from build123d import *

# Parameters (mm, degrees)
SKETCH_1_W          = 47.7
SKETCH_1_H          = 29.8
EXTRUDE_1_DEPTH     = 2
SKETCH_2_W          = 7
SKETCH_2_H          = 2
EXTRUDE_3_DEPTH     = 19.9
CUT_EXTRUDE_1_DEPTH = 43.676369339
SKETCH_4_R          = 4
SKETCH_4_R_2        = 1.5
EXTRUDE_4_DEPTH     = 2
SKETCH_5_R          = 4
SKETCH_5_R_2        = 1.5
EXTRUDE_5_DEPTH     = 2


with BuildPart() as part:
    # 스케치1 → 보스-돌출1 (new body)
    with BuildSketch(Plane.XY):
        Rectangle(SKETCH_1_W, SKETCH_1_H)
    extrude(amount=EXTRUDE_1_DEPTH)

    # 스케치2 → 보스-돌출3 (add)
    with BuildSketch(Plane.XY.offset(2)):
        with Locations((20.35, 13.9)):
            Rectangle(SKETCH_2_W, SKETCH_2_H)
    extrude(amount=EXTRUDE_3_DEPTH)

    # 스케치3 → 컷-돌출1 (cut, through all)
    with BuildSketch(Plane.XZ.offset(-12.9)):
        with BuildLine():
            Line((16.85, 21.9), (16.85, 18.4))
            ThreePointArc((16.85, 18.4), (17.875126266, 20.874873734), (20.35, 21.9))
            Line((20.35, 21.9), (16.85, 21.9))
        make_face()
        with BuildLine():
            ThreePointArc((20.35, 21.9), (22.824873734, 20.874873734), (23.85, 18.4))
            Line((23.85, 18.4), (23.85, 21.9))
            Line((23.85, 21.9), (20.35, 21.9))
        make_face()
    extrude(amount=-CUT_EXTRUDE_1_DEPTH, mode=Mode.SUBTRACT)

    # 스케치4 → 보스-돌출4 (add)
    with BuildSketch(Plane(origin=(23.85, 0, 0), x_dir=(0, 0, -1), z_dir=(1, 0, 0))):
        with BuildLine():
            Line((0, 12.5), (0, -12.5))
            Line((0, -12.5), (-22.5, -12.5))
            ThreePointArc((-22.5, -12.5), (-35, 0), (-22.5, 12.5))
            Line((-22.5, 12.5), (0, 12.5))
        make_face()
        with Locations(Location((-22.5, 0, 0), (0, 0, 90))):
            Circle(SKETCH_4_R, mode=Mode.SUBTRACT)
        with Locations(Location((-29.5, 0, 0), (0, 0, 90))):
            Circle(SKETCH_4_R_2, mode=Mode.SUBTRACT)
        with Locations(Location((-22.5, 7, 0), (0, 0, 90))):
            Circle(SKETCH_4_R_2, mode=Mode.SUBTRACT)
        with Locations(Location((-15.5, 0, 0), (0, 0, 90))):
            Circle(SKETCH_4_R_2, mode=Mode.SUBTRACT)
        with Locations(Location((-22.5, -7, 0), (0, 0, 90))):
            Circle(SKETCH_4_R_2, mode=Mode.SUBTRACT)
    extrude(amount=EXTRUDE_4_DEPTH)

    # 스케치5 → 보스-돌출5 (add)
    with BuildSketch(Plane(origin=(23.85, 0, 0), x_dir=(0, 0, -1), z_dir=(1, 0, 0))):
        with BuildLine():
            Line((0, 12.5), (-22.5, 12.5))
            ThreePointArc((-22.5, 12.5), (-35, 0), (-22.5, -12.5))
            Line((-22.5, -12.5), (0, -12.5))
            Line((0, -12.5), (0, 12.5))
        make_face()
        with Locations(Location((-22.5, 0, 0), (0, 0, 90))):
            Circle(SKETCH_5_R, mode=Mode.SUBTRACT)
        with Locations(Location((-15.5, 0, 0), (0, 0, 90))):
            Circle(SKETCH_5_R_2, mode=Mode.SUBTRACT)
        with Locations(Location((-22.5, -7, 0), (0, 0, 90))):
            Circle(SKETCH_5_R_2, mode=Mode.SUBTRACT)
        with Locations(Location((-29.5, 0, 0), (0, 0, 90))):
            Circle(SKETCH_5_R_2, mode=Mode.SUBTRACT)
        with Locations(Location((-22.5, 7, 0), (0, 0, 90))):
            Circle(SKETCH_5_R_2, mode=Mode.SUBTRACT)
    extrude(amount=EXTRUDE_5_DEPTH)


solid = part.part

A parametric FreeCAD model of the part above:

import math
import FreeCAD as App
import Part
import Sketcher

V = App.Vector
Q = App.Units.Quantity

doc = App.newDocument("Part")
body = doc.addObject("PartDesign::Body", "Body")

sketch1 = body.newObject("Sketcher::SketchObject", "Sketch")
sketch1.AttachmentSupport = (doc.getObject("XY_Plane"), [""])
sketch1.MapMode = "FlatFace"
sketch1.addGeometry(Part.LineSegment(V(-23.85, 14.9, 0), V(-23.85, -14.9, 0)), False)
sketch1.addGeometry(Part.LineSegment(V(-23.85, -14.9, 0), V(23.85, -14.9, 0)), False)
sketch1.addGeometry(Part.LineSegment(V(23.85, -14.9, 0), V(23.85, 14.9, 0)), False)
sketch1.addGeometry(Part.LineSegment(V(23.85, 14.9, 0), V(-23.85, 14.9, 0)), False)
sketch1.addConstraint(Sketcher.Constraint("Coincident", 0, 2, 1, 1))
sketch1.addConstraint(Sketcher.Constraint("Coincident", 1, 2, 2, 1))
sketch1.addConstraint(Sketcher.Constraint("Coincident", 2, 2, 3, 1))
sketch1.addConstraint(Sketcher.Constraint("Coincident", 3, 2, 0, 1))
sketch1.addConstraint(Sketcher.Constraint("Vertical", 0))
sketch1.addConstraint(Sketcher.Constraint("Horizontal", 1))
sketch1.addConstraint(Sketcher.Constraint("Vertical", 2))
sketch1.addConstraint(Sketcher.Constraint("Horizontal", 3))
sketch1.addConstraint(Sketcher.Constraint("Symmetric", 0, 2, 2, 2, -1, 1))
sketch1.addConstraint(Sketcher.Constraint("DistanceX", 1, 1, 1, 2, Q("47.7 mm")))
sketch1.addConstraint(Sketcher.Constraint("DistanceY", 0, 2, 0, 1, Q("29.8 mm")))
pad1 = body.newObject("PartDesign::Pad", "Pad")
pad1.Profile = sketch1
pad1.Length = 2

sketch2 = body.newObject("Sketcher::SketchObject", "Sketch001")
sketch2.AttachmentSupport = (doc.getObject("XY_Plane"), [""])
sketch2.MapMode = "FlatFace"
sketch2.AttachmentOffset = App.Placement(V(0, 0, 2), App.Rotation())
sketch2.addGeometry(Part.LineSegment(V(16.85, 14.9, 0), V(16.85, 12.9, 0)), False)
sketch2.addGeometry(Part.LineSegment(V(16.85, 12.9, 0), V(23.85, 12.9, 0)), False)
sketch2.addGeometry(Part.LineSegment(V(23.85, 12.9, 0), V(23.85, 14.9, 0)), False)
sketch2.addGeometry(Part.LineSegment(V(23.85, 14.9, 0), V(16.85, 14.9, 0)), False)
sketch2.addConstraint(Sketcher.Constraint("Coincident", 0, 2, 1, 1))
sketch2.addConstraint(Sketcher.Constraint("Coincident", 1, 2, 2, 1))
sketch2.addConstraint(Sketcher.Constraint("Coincident", 2, 2, 3, 1))
sketch2.addConstraint(Sketcher.Constraint("Coincident", 3, 2, 0, 1))
sketch2.addConstraint(Sketcher.Constraint("Vertical", 0))
sketch2.addConstraint(Sketcher.Constraint("Horizontal", 1))
sketch2.addConstraint(Sketcher.Constraint("Vertical", 2))
sketch2.addConstraint(Sketcher.Constraint("Horizontal", 3))
sketch2.addConstraint(Sketcher.Constraint("DistanceX", 1, 1, 1, 2, Q("7 mm")))
sketch2.addConstraint(Sketcher.Constraint("DistanceY", 0, 2, 0, 1, Q("2 mm")))
sketch2.addConstraint(Sketcher.Constraint("DistanceY", -1, 1, 0, 2, Q("12.9 mm")))
sketch2.addConstraint(Sketcher.Constraint("DistanceX", -1, 1, 0, 2, Q("16.85 mm")))
pad2 = body.newObject("PartDesign::Pad", "Pad001")
pad2.Profile = sketch2
pad2.Length = 19.9

sketch3 = body.newObject("Sketcher::SketchObject", "Sketch002")
sketch3.AttachmentSupport = (doc.getObject("XZ_Plane"), [""])
sketch3.MapMode = "FlatFace"
sketch3.AttachmentOffset = App.Placement(V(0, 0, -12.9), App.Rotation())
sketch3.addGeometry(Part.LineSegment(V(16.85, 21.9, 0), V(16.85, 18.4, 0)), False)
sketch3.addGeometry(Part.ArcOfCircle(Part.Circle(V(20.35, 18.4, 0), V(0, 0, 1), 3.5), math.radians(90), math.radians(180)), False)
sketch3.addGeometry(Part.LineSegment(V(20.35, 21.9, 0), V(16.85, 21.9, 0)), False)
sketch3.addGeometry(Part.ArcOfCircle(Part.Circle(V(20.35, 18.4, 0), V(0, 0, 1), 3.5), math.radians(0), math.radians(90)), False)
sketch3.addGeometry(Part.LineSegment(V(23.85, 18.4, 0), V(23.85, 21.9, 0)), False)
sketch3.addGeometry(Part.LineSegment(V(23.85, 21.9, 0), V(20.35, 21.9, 0)), False)
sketch3.addConstraint(Sketcher.Constraint("Tangent", 0, 2, 1, 2))
sketch3.addConstraint(Sketcher.Constraint("Tangent", 1, 1, 2, 1))
sketch3.addConstraint(Sketcher.Constraint("Coincident", 2, 2, 0, 1))
sketch3.addConstraint(Sketcher.Constraint("Tangent", 3, 1, 4, 1))
sketch3.addConstraint(Sketcher.Constraint("Coincident", 4, 2, 5, 1))
sketch3.addConstraint(Sketcher.Constraint("Tangent", 5, 2, 3, 2))
sketch3.addConstraint(Sketcher.Constraint("Vertical", 0))
sketch3.addConstraint(Sketcher.Constraint("Horizontal", 2))
sketch3.addConstraint(Sketcher.Constraint("Vertical", 4))
sketch3.addConstraint(Sketcher.Constraint("Horizontal", 5))
sketch3.addConstraint(Sketcher.Constraint("Coincident", 3, 3, 1, 3))
sketch3.addConstraint(Sketcher.Constraint("Equal", 1, 3))
sketch3.addConstraint(Sketcher.Constraint("Radius", 1, Q("3.5 mm")))
sketch3.addConstraint(Sketcher.Constraint("DistanceY", -1, 1, 1, 3, Q("18.4 mm")))
sketch3.addConstraint(Sketcher.Constraint("DistanceX", -1, 1, 1, 3, Q("20.35 mm")))
pocket1 = body.newObject("PartDesign::Pocket", "Pocket")
pocket1.Profile = sketch3
pocket1.Type = "ThroughAll"

sketch4 = body.newObject("Sketcher::SketchObject", "Sketch003")
sketch4.AttachmentSupport = (doc.getObject("YZ_Plane"), [""])
sketch4.MapMode = "FlatFace"
sketch4.AttachmentOffset = App.Placement(V(0, 0, 23.85), App.Rotation())
sketch4.addGeometry(Part.LineSegment(V(-12.5, 0, 0), V(12.5, 0, 0)), False)
sketch4.addGeometry(Part.LineSegment(V(12.5, 0, 0), V(12.5, 22.5, 0)), False)
sketch4.addGeometry(Part.ArcOfCircle(Part.Circle(V(0, 22.5, 0), V(0, 0, 1), 12.5), math.radians(0), math.radians(180)), False)
sketch4.addGeometry(Part.LineSegment(V(-12.5, 22.5, 0), V(-12.5, 0, 0)), False)
sketch4.addGeometry(Part.Circle(V(-7, 22.5, 0), V(0, 0, 1), 1.5), False)
sketch4.addGeometry(Part.Circle(V(0, 15.5, 0), V(0, 0, 1), 1.5), False)
sketch4.addGeometry(Part.Circle(V(0, 22.5, 0), V(0, 0, 1), 4), False)
sketch4.addGeometry(Part.Circle(V(0, 29.5, 0), V(0, 0, 1), 1.5), False)
sketch4.addGeometry(Part.Circle(V(7, 22.5, 0), V(0, 0, 1), 1.5), False)
sketch4.addConstraint(Sketcher.Constraint("Coincident", 0, 2, 1, 1))
sketch4.addConstraint(Sketcher.Constraint("Tangent", 1, 2, 2, 1))
sketch4.addConstraint(Sketcher.Constraint("Tangent", 2, 2, 3, 1))
sketch4.addConstraint(Sketcher.Constraint("Coincident", 3, 2, 0, 1))
sketch4.addConstraint(Sketcher.Constraint("Horizontal", 0))
sketch4.addConstraint(Sketcher.Constraint("Vertical", 1))
sketch4.addConstraint(Sketcher.Constraint("Vertical", 3))
sketch4.addConstraint(Sketcher.Constraint("Coincident", 6, 3, 2, 3))
sketch4.addConstraint(Sketcher.Constraint("Equal", 4, 5))
sketch4.addConstraint(Sketcher.Constraint("Equal", 5, 7))
sketch4.addConstraint(Sketcher.Constraint("Equal", 7, 8))
sketch4.addConstraint(Sketcher.Constraint("Symmetric", 0, 2, 3, 2, -1, 1))
sketch4.addConstraint(Sketcher.Constraint("Symmetric", 4, 3, 8, 3, -2))
sketch4.addConstraint(Sketcher.Constraint("PointOnObject", 5, 3, -2))
sketch4.addConstraint(Sketcher.Constraint("PointOnObject", 7, 3, -2))
sketch4.addConstraint(Sketcher.Constraint("Horizontal", 2, 3, 4, 3))
sketch4.addConstraint(Sketcher.Constraint("Diameter", 4, Q("3 mm")))
sketch4.addConstraint(Sketcher.Constraint("Diameter", 6, Q("8 mm")))
sketch4.addConstraint(Sketcher.Constraint("Radius", 2, Q("12.5 mm")))
sketch4.addConstraint(Sketcher.Constraint("DistanceY", 1, 1, 1, 2, Q("22.5 mm")))
sketch4.addConstraint(Sketcher.Constraint("DistanceX", 4, 3, -1, 1, Q("7 mm")))
sketch4.addConstraint(Sketcher.Constraint("DistanceY", 5, 3, 2, 3, Q("7 mm")))
sketch4.addConstraint(Sketcher.Constraint("DistanceY", 2, 3, 7, 3, Q("7 mm")))
pad3 = body.newObject("PartDesign::Pad", "Pad002")
pad3.Profile = sketch4
pad3.Length = 2

sketch5 = body.newObject("Sketcher::SketchObject", "Sketch004")
sketch5.AttachmentSupport = (doc.getObject("YZ_Plane"), [""])
sketch5.MapMode = "FlatFace"
sketch5.AttachmentOffset = App.Placement(V(0, 0, 23.85), App.Rotation())
sketch5.addGeometry(Part.LineSegment(V(12.5, 0, 0), V(12.5, 22.5, 0)), False)
sketch5.addGeometry(Part.ArcOfCircle(Part.Circle(V(0, 22.5, 0), V(0, 0, 1), 12.5), math.radians(0), math.radians(180)), False)
sketch5.addGeometry(Part.LineSegment(V(-12.5, 22.5, 0), V(-12.5, 0, 0)), False)
sketch5.addGeometry(Part.LineSegment(V(-12.5, 0, 0), V(12.5, 0, 0)), False)
sketch5.addGeometry(Part.Circle(V(-7, 22.5, 0), V(0, 0, 1), 1.5), False)
sketch5.addGeometry(Part.Circle(V(0, 29.5, 0), V(0, 0, 1), 1.5), False)
sketch5.addGeometry(Part.Circle(V(0, 22.5, 0), V(0, 0, 1), 4), False)
sketch5.addGeometry(Part.Circle(V(0, 15.5, 0), V(0, 0, 1), 1.5), False)
sketch5.addGeometry(Part.Circle(V(7, 22.5, 0), V(0, 0, 1), 1.5), False)
sketch5.addConstraint(Sketcher.Constraint("Tangent", 0, 2, 1, 1))
sketch5.addConstraint(Sketcher.Constraint("Tangent", 1, 2, 2, 1))
sketch5.addConstraint(Sketcher.Constraint("Coincident", 2, 2, 3, 1))
sketch5.addConstraint(Sketcher.Constraint("Coincident", 3, 2, 0, 1))
sketch5.addConstraint(Sketcher.Constraint("Vertical", 0))
sketch5.addConstraint(Sketcher.Constraint("Vertical", 2))
sketch5.addConstraint(Sketcher.Constraint("Horizontal", 3))
sketch5.addConstraint(Sketcher.Constraint("Coincident", 6, 3, 1, 3))
sketch5.addConstraint(Sketcher.Constraint("Equal", 4, 5))
sketch5.addConstraint(Sketcher.Constraint("Equal", 5, 7))
sketch5.addConstraint(Sketcher.Constraint("Equal", 7, 8))
sketch5.addConstraint(Sketcher.Constraint("Symmetric", 2, 2, 3, 2, -1, 1))
sketch5.addConstraint(Sketcher.Constraint("Symmetric", 4, 3, 8, 3, -2))
sketch5.addConstraint(Sketcher.Constraint("PointOnObject", 5, 3, -2))
sketch5.addConstraint(Sketcher.Constraint("PointOnObject", 7, 3, -2))
sketch5.addConstraint(Sketcher.Constraint("Horizontal", 1, 3, 4, 3))
sketch5.addConstraint(Sketcher.Constraint("Diameter", 4, Q("3 mm")))
sketch5.addConstraint(Sketcher.Constraint("Diameter", 6, Q("8 mm")))
sketch5.addConstraint(Sketcher.Constraint("Radius", 1, Q("12.5 mm")))
sketch5.addConstraint(Sketcher.Constraint("DistanceY", 0, 1, 0, 2, Q("22.5 mm")))
sketch5.addConstraint(Sketcher.Constraint("DistanceX", 4, 3, -1, 1, Q("7 mm")))
sketch5.addConstraint(Sketcher.Constraint("DistanceY", 1, 3, 5, 3, Q("7 mm")))
sketch5.addConstraint(Sketcher.Constraint("DistanceY", 7, 3, 1, 3, Q("7 mm")))
pad4 = body.newObject("PartDesign::Pad", "Pad003")
pad4.Profile = sketch5
pad4.Length = 2

doc.recompute()
